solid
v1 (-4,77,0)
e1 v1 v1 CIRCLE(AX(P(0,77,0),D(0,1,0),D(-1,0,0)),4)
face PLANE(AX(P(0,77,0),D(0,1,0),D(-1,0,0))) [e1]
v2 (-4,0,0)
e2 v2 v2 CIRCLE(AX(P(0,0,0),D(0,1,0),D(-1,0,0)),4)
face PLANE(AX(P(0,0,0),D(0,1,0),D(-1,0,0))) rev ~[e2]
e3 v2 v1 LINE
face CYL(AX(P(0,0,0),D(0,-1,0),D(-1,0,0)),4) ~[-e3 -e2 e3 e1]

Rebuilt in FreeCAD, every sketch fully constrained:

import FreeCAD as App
import Part
import Sketcher

V = App.Vector
Q = App.Units.Quantity

doc = App.newDocument("Part")
body = doc.addObject("PartDesign::Body", "Body")

sketch1 = body.newObject("Sketcher::SketchObject", "Sketch")
sketch1.AttachmentSupport = (doc.getObject("XZ_Plane"), [""])
sketch1.MapMode = "FlatFace"
sketch1.addGeometry(Part.Circle(V(0, 0, 0), V(0, 0, 1), 4), False)
sketch1.addConstraint(Sketcher.Constraint("Coincident", 0, 3, -1, 1))
sketch1.addConstraint(Sketcher.Constraint("Diameter", 0, Q("8 mm")))
pad1 = body.newObject("PartDesign::Pad", "Pad")
pad1.Profile = sketch1
pad1.Length = 77
pad1.Reversed = True

doc.recompute()
